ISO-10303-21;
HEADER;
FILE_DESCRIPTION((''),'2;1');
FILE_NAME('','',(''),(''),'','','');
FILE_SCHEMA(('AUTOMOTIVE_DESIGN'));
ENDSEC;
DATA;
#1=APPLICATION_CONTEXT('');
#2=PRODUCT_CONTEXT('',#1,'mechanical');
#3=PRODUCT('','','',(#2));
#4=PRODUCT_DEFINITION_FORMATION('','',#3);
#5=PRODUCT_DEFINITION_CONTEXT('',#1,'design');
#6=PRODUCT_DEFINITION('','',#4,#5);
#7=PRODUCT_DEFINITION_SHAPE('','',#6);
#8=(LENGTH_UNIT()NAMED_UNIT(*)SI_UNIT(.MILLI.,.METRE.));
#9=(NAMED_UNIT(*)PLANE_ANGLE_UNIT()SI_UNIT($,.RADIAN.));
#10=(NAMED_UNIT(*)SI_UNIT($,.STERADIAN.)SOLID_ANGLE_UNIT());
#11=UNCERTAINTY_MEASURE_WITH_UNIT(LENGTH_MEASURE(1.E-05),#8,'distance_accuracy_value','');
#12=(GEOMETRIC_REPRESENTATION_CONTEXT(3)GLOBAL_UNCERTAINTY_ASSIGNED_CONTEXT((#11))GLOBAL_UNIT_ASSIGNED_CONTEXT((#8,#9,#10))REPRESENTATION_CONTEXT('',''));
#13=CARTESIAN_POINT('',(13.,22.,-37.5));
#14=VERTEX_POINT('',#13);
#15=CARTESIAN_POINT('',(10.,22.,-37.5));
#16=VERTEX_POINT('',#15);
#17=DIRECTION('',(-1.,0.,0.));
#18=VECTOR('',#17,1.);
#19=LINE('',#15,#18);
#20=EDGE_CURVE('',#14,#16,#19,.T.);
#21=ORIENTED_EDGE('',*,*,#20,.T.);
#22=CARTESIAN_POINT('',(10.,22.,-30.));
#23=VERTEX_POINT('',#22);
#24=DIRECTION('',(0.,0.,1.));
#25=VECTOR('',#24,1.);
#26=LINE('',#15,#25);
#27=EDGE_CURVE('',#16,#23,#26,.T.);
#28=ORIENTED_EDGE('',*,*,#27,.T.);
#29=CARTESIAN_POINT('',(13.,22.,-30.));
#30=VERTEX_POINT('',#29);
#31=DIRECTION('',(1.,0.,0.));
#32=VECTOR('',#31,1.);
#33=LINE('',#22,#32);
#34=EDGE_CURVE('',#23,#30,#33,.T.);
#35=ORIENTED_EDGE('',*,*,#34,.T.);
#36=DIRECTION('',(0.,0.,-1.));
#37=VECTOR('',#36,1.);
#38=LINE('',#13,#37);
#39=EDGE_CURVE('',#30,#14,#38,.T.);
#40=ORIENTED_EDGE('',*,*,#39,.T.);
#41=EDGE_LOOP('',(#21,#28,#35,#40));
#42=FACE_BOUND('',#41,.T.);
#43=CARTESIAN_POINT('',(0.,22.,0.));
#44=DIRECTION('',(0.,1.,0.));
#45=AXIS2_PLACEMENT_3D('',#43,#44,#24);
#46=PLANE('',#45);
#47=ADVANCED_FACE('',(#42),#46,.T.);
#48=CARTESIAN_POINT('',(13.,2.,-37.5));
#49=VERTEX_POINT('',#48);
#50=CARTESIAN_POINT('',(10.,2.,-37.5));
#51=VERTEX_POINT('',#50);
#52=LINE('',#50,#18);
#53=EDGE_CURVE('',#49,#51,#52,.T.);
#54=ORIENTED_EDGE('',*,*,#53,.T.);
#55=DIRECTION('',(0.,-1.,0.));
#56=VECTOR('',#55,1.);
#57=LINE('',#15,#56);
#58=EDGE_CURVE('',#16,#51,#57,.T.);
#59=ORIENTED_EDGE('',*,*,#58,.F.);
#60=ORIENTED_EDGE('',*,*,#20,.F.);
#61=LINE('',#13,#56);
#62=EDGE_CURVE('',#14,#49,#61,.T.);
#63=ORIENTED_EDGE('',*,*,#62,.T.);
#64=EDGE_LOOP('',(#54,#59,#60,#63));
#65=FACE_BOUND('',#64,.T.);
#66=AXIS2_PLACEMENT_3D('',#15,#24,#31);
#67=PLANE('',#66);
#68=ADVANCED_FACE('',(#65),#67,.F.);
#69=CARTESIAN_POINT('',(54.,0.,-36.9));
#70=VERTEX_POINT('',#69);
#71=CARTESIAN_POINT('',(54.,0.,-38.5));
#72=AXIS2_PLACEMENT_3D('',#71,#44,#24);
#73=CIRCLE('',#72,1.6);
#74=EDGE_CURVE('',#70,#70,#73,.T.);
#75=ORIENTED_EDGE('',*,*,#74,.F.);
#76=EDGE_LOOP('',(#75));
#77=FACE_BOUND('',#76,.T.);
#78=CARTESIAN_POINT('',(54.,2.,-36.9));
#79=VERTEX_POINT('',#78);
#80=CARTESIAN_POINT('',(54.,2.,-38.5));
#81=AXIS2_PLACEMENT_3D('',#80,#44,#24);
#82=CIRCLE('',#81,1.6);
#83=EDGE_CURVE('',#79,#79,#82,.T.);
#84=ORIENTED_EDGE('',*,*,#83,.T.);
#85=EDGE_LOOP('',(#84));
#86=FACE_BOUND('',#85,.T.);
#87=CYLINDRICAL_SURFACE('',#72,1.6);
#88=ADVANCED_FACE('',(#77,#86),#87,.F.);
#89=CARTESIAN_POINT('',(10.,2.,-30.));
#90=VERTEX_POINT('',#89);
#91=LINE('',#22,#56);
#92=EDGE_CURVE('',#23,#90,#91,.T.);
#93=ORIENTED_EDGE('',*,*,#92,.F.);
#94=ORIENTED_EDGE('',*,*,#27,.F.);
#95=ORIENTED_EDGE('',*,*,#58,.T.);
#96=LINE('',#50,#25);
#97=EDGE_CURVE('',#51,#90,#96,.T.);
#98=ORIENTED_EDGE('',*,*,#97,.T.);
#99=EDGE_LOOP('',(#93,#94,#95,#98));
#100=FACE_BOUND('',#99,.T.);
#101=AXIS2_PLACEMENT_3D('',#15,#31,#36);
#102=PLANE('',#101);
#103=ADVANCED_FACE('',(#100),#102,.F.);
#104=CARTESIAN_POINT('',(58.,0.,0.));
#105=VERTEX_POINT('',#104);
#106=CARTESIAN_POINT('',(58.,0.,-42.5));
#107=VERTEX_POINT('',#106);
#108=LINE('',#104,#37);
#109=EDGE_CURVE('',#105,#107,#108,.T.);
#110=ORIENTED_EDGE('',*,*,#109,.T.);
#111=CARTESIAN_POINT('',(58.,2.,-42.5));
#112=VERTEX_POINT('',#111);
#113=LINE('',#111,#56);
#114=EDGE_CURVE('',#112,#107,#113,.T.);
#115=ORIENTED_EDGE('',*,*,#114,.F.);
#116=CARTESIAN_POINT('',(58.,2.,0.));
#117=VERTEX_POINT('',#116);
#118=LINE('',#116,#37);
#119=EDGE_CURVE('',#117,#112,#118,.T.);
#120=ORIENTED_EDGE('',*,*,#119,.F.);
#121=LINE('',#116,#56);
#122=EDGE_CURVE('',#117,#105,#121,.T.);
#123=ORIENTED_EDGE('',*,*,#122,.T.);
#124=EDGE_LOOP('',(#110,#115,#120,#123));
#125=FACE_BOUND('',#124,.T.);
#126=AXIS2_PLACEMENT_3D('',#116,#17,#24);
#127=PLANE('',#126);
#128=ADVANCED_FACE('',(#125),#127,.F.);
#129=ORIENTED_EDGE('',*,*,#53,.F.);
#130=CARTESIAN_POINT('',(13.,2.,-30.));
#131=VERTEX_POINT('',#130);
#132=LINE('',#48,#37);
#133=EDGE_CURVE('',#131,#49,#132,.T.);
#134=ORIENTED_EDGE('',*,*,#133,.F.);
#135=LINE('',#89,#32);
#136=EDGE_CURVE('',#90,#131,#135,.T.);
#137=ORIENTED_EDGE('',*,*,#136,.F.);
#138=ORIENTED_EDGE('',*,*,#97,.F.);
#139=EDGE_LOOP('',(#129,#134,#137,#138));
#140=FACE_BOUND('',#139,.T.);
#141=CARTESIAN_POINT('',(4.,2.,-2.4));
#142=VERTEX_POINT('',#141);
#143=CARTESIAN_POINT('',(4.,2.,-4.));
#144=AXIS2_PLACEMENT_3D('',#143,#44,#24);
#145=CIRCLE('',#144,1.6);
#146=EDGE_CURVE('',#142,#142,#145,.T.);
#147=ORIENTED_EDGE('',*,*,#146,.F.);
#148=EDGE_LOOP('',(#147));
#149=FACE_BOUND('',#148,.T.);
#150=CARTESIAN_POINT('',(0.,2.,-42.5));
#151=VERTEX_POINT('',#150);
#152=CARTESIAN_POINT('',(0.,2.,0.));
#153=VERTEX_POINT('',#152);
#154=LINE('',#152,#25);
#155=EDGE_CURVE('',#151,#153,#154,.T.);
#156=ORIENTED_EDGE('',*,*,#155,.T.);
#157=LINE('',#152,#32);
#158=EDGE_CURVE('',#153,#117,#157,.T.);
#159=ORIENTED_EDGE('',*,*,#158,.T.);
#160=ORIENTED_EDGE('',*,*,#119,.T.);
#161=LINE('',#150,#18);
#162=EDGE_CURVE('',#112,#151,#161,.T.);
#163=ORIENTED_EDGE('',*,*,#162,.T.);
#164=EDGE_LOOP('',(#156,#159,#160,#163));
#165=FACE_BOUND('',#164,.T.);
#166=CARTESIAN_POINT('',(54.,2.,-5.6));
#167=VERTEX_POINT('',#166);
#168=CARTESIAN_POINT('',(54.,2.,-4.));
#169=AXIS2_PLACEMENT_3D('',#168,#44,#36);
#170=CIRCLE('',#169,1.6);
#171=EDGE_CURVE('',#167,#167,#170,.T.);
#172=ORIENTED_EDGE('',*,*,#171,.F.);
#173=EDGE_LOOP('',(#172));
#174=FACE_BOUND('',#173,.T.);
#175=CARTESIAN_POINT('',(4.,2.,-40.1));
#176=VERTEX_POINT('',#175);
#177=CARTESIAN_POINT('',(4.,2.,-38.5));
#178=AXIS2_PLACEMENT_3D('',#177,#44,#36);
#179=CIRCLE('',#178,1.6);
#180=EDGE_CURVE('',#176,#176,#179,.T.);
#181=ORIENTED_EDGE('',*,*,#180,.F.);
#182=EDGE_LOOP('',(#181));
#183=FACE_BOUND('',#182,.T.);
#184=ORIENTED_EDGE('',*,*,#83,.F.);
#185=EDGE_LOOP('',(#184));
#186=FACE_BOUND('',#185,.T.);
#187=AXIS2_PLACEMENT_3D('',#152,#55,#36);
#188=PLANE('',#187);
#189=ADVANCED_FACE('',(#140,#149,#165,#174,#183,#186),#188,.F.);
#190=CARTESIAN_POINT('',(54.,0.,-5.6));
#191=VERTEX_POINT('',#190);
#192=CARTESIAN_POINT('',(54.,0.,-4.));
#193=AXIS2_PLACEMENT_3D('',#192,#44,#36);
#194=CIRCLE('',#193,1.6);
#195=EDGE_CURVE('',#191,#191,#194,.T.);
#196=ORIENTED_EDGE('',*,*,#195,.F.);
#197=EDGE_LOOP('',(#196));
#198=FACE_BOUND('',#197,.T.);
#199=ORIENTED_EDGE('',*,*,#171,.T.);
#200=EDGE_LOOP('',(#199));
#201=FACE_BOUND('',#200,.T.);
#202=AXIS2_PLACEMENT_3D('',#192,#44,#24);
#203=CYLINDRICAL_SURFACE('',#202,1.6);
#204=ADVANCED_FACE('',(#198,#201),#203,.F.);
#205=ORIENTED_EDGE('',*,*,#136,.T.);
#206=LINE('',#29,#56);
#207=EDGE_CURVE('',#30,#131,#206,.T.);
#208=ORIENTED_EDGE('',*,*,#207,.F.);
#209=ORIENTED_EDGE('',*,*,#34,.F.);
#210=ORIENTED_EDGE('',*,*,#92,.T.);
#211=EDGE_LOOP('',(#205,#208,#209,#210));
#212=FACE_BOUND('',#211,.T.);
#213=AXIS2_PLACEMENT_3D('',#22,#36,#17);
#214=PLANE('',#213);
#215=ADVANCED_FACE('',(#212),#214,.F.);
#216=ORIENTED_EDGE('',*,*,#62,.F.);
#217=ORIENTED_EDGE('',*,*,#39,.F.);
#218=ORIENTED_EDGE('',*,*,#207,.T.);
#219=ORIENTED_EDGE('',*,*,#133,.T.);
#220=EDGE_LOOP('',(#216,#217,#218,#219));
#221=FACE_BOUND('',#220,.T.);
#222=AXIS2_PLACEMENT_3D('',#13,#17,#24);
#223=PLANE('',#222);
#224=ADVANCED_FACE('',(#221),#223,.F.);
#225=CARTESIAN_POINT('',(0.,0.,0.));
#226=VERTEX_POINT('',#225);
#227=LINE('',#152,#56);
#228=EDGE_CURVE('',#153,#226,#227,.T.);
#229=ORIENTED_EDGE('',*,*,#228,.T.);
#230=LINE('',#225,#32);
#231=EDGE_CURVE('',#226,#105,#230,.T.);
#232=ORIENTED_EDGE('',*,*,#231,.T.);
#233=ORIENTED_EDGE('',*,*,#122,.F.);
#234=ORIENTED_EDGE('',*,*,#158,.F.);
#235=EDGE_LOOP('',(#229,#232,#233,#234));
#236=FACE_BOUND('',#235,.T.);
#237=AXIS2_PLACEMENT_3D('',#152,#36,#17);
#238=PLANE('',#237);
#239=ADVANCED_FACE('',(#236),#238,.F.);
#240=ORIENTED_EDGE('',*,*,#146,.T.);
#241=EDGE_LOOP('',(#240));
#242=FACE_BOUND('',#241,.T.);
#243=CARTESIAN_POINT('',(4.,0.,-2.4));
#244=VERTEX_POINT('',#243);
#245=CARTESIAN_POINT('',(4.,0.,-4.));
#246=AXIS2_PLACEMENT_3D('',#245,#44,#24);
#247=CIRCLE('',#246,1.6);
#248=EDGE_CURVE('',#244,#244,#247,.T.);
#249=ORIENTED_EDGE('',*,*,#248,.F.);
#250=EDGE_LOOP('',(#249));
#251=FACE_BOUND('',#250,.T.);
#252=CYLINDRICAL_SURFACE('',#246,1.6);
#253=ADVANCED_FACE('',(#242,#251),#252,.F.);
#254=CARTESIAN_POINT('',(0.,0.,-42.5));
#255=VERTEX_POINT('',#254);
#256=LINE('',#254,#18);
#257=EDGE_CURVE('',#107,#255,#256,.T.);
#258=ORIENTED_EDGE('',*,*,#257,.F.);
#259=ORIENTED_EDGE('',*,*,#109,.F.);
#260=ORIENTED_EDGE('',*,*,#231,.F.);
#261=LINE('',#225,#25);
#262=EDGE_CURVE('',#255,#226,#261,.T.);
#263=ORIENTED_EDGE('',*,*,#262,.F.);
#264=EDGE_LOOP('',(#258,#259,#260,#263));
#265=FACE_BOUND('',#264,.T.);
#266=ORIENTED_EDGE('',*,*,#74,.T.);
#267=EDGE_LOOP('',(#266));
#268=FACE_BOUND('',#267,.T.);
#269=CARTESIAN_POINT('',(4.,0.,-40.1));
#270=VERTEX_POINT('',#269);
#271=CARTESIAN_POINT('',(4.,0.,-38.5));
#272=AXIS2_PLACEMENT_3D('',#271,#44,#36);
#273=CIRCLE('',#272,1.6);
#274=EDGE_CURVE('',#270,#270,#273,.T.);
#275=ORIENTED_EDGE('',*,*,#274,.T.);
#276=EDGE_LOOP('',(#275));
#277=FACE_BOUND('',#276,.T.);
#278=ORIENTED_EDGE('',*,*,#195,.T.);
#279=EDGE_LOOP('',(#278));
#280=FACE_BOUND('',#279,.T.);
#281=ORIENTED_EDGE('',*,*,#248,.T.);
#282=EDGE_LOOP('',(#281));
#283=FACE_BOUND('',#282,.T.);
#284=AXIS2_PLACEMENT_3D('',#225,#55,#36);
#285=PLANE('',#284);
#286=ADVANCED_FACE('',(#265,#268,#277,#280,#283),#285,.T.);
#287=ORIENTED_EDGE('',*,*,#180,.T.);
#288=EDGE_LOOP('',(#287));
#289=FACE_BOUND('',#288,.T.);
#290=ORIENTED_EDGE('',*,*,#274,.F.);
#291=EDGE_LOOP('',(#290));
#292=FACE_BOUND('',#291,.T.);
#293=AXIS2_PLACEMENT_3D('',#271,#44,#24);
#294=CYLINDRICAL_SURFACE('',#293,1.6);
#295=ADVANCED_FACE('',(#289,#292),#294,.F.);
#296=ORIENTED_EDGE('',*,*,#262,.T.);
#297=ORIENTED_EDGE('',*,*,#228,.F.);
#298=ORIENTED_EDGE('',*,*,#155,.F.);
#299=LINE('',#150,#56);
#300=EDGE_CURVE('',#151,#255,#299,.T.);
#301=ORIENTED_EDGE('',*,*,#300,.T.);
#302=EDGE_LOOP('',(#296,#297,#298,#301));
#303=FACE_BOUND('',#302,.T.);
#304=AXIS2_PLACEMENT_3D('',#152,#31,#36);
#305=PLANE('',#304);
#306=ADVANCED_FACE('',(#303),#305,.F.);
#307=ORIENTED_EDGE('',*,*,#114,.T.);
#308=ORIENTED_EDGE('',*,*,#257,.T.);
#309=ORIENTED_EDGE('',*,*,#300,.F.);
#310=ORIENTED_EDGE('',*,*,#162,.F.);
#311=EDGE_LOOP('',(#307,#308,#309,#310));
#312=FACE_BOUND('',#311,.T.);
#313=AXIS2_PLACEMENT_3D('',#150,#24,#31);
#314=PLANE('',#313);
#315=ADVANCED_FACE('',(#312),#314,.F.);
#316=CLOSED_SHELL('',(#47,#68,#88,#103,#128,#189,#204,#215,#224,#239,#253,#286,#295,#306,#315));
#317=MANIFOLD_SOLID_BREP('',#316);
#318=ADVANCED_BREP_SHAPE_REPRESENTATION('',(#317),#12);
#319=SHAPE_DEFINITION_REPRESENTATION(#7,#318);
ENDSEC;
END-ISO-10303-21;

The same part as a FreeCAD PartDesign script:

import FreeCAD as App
import Part
import Sketcher

doc = App.newDocument("Part")
body = doc.addObject("PartDesign::Body", "Body")

# Sketch on XZ plane
sketch1 = body.newObject("Sketcher::SketchObject", "Sketch")
sketch1.AttachmentSupport = (doc.getObject("XZ_Plane"), [""])
sketch1.MapMode = "FlatFace"
sketch1.addGeometry(Part.LineSegment(App.Vector(0, -42.5, 0), App.Vector(0, 0, 0)), False)
sketch1.addGeometry(Part.LineSegment(App.Vector(0, 0, 0), App.Vector(58, 0, 0)), False)
sketch1.addGeometry(Part.LineSegment(App.Vector(58, 0, 0), App.Vector(58, -42.5, 0)), False)
sketch1.addGeometry(Part.LineSegment(App.Vector(58, -42.5, 0), App.Vector(0, -42.5, 0)), False)
sketch1.addConstraint(Sketcher.Constraint("Coincident", 0, 2, 1, 1))
sketch1.addConstraint(Sketcher.Constraint("Coincident", 1, 2, 2, 1))
sketch1.addConstraint(Sketcher.Constraint("Coincident", 2, 2, 3, 1))
sketch1.addConstraint(Sketcher.Constraint("Coincident", 3, 2, 0, 1))
sketch1.addConstraint(Sketcher.Constraint("Vertical", 0))
sketch1.addConstraint(Sketcher.Constraint("Horizontal", 1))
sketch1.addConstraint(Sketcher.Constraint("Vertical", 2))
sketch1.addConstraint(Sketcher.Constraint("Horizontal", 3))
sketch1.addConstraint(Sketcher.Constraint("Coincident", 0, 2, -1, 1))
sketch1.addConstraint(Sketcher.Constraint("DistanceX", 1, 1, 1, 2, 58.0))
sketch1.addConstraint(Sketcher.Constraint("DistanceY", 0, 1, 0, 2, 42.5))
pad1 = body.newObject("PartDesign::Pad", "Pad")
pad1.Profile = sketch1
pad1.Length = 2
pad1.Reversed = True

# Sketch on XZ plane
sketch2 = body.newObject("Sketcher::SketchObject", "Sketch001")
sketch2.AttachmentSupport = (doc.getObject("XZ_Plane"), [""])
sketch2.MapMode = "FlatFace"
sketch2.AttachmentOffset = App.Placement(App.Vector(0, 0, -2), App.Rotation())
sketch2.addGeometry(Part.Circle(App.Vector(54, -38.5, 0), App.Vector(0, 0, 1), 1.6), False)
sketch2.addGeometry(Part.Circle(App.Vector(54, -4, 0), App.Vector(0, 0, 1), 1.6), False)
sketch2.addGeometry(Part.Circle(App.Vector(4, -4, 0), App.Vector(0, 0, 1), 1.6), False)
sketch2.addGeometry(Part.Circle(App.Vector(4, -38.5, 0), App.Vector(0, 0, 1), 1.6), False)
sketch2.addConstraint(Sketcher.Constraint("Equal", 0, 1))
sketch2.addConstraint(Sketcher.Constraint("Equal", 1, 2))
sketch2.addConstraint(Sketcher.Constraint("Equal", 2, 3))
sketch2.addConstraint(Sketcher.Constraint("Horizontal", 1, 3, 2, 3))
sketch2.addConstraint(Sketcher.Constraint("Horizontal", 0, 3, 3, 3))
sketch2.addConstraint(Sketcher.Constraint("Vertical", 0, 3, 1, 3))
sketch2.addConstraint(Sketcher.Constraint("Vertical", 2, 3, 3, 3))
sketch2.addConstraint(Sketcher.Constraint("Diameter", 0, 3.2))
sketch2.addConstraint(Sketcher.Constraint("DistanceX", -1, 1, 0, 3, 54.0))
sketch2.addConstraint(Sketcher.Constraint("DistanceY", 1, 3, -1, 1, 4.0))
sketch2.addConstraint(Sketcher.Constraint("DistanceX", -1, 1, 2, 3, 4.0))
sketch2.addConstraint(Sketcher.Constraint("DistanceY", 0, 3, -1, 1, 38.5))
pocket1 = body.newObject("PartDesign::Pocket", "Pocket")
pocket1.Profile = sketch2
pocket1.Type = "ThroughAll"
pocket1.Reversed = True

# Sketch on XZ plane
sketch3 = body.newObject("Sketcher::SketchObject", "Sketch002")
sketch3.AttachmentSupport = (doc.getObject("XZ_Plane"), [""])
sketch3.MapMode = "FlatFace"
sketch3.AttachmentOffset = App.Placement(App.Vector(0, 0, -2), App.Rotation())
sketch3.addGeometry(Part.LineSegment(App.Vector(10, -37.5, 0), App.Vector(10, -30, 0)), False)
sketch3.addGeometry(Part.LineSegment(App.Vector(10, -30, 0), App.Vector(13, -30, 0)), False)
sketch3.addGeometry(Part.LineSegment(App.Vector(13, -30, 0), App.Vector(13, -37.5, 0)), False)
sketch3.addGeometry(Part.LineSegment(App.Vector(13, -37.5, 0), App.Vector(10, -37.5, 0)), False)
sketch3.addConstraint(Sketcher.Constraint("Coincident", 0, 2, 1, 1))
sketch3.addConstraint(Sketcher.Constraint("Coincident", 1, 2, 2, 1))
sketch3.addConstraint(Sketcher.Constraint("Coincident", 2, 2, 3, 1))
sketch3.addConstraint(Sketcher.Constraint("Coincident", 3, 2, 0, 1))
sketch3.addConstraint(Sketcher.Constraint("Vertical", 0))
sketch3.addConstraint(Sketcher.Constraint("Horizontal", 1))
sketch3.addConstraint(Sketcher.Constraint("Vertical", 2))
sketch3.addConstraint(Sketcher.Constraint("Horizontal", 3))
sketch3.addConstraint(Sketcher.Constraint("DistanceX", 1, 1, 1, 2, 3.0))
sketch3.addConstraint(Sketcher.Constraint("DistanceY", 0, 1, 0, 2, 7.5))
sketch3.addConstraint(Sketcher.Constraint("DistanceX", -1, 1, 0, 2, 10.0))
sketch3.addConstraint(Sketcher.Constraint("DistanceY", 0, 2, -1, 1, 30.0))
pad2 = body.newObject("PartDesign::Pad", "Pad001")
pad2.Profile = sketch3
pad2.Length = 20
pad2.Reversed = True

doc.recompute()
